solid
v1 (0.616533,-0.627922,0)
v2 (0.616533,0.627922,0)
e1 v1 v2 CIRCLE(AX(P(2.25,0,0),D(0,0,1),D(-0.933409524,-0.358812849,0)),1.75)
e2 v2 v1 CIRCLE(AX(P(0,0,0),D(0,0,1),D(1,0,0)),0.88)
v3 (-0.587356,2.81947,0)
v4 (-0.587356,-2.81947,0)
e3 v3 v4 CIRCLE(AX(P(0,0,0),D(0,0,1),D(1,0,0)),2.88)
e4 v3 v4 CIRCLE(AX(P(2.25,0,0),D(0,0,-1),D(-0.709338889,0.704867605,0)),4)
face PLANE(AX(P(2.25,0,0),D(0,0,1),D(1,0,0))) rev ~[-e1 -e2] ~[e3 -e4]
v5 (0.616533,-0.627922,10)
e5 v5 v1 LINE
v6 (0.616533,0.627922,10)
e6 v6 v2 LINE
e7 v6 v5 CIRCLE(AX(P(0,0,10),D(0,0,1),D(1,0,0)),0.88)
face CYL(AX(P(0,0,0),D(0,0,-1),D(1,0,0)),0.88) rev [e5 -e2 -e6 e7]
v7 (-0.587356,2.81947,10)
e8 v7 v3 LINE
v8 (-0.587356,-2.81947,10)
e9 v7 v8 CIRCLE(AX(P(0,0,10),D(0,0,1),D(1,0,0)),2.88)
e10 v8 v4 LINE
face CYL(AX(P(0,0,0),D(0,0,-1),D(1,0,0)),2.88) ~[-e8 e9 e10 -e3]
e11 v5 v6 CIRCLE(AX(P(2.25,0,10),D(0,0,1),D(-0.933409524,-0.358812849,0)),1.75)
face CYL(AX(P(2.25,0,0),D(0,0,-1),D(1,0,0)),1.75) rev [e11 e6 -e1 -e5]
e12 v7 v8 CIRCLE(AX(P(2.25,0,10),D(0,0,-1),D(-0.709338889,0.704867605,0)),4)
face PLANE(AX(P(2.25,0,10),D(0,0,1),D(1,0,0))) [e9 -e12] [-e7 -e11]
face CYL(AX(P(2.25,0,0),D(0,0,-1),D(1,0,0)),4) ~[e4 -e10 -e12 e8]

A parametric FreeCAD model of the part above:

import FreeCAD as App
import Part
import Sketcher

doc = App.newDocument("Part")
body = doc.addObject("PartDesign::Body", "Body")

sketch1 = body.newObject("Sketcher::SketchObject", "Sketch")
sketch1.AttachmentSupport = (doc.getObject("XY_Plane"), [""])
sketch1.MapMode = "FlatFace"
sketch1.addGeometry(Part.Circle(App.Vector(0, 0, 0), App.Vector(0, 0, 1), 0.88), False)
sketch1.addConstraint(Sketcher.Constraint("Coincident", 0, 3, -1, 1))
sketch1.addConstraint(Sketcher.Constraint("Diameter", 0, 1.76))
pad1 = body.newObject("PartDesign::Pad", "Pad")
pad1.Profile = sketch1
pad1.Length = 10
body2 = doc.addObject("PartDesign::Body", "Body001")

sketch2 = body2.newObject("Sketcher::SketchObject", "Sketch001")
sketch2.AttachmentSupport = (doc.getObject("XY_Plane001"), [""])
sketch2.MapMode = "FlatFace"
sketch2.addGeometry(Part.Circle(App.Vector(2.25, 0, 0), App.Vector(0, 0, 1), 1.75), False)
sketch2.addConstraint(Sketcher.Constraint("PointOnObject", 0, 3, -1))
sketch2.addConstraint(Sketcher.Constraint("Diameter", 0, 3.5))
sketch2.addConstraint(Sketcher.Constraint("DistanceX", -1, 1, 0, 3, 2.25))
pad2 = body2.newObject("PartDesign::Pad", "Pad001")
pad2.Profile = sketch2
pad2.Length = 10
body3 = doc.addObject("PartDesign::Body", "Body002")

sketch3 = body3.newObject("Sketcher::SketchObject", "Sketch002")
sketch3.AttachmentSupport = (doc.getObject("XY_Plane002"), [""])
sketch3.MapMode = "FlatFace"
sketch3.addGeometry(Part.Circle(App.Vector(0, 0, 0), App.Vector(0, 0, 1), 2.88), False)
sketch3.addConstraint(Sketcher.Constraint("Coincident", 0, 3, -1, 1))
sketch3.addConstraint(Sketcher.Constraint("Diameter", 0, 5.76))
pad3 = body3.newObject("PartDesign::Pad", "Pad002")
pad3.Profile = sketch3
pad3.Length = 10
body4 = doc.addObject("PartDesign::Body", "Body003")

sketch4 = body4.newObject("Sketcher::SketchObject", "Sketch003")
sketch4.AttachmentSupport = (doc.getObject("XY_Plane003"), [""])
sketch4.MapMode = "FlatFace"
sketch4.addGeometry(Part.Circle(App.Vector(2.25, 0, 0), App.Vector(0, 0, 1), 4), False)
sketch4.addConstraint(Sketcher.Constraint("PointOnObject", 0, 3, -1))
sketch4.addConstraint(Sketcher.Constraint("Diameter", 0, 8.0))
sketch4.addConstraint(Sketcher.Constraint("DistanceX", -1, 1, 0, 3, 2.25))
pad4 = body4.newObject("PartDesign::Pad", "Pad003")
pad4.Profile = sketch4
pad4.Length = 10
doc.recompute()

boolean = body4.newObject("PartDesign::Boolean", "Boolean")
boolean.Type = "Fuse"
boolean.addObjects([body3])
doc.recompute()

boolean2 = body4.newObject("PartDesign::Boolean", "Boolean001")
boolean2.Type = "Cut"
boolean2.addObjects([body2])
doc.recompute()

boolean3 = body4.newObject("PartDesign::Boolean", "Boolean002")
boolean3.Type = "Cut"
boolean3.addObjects([body])

doc.recompute()
